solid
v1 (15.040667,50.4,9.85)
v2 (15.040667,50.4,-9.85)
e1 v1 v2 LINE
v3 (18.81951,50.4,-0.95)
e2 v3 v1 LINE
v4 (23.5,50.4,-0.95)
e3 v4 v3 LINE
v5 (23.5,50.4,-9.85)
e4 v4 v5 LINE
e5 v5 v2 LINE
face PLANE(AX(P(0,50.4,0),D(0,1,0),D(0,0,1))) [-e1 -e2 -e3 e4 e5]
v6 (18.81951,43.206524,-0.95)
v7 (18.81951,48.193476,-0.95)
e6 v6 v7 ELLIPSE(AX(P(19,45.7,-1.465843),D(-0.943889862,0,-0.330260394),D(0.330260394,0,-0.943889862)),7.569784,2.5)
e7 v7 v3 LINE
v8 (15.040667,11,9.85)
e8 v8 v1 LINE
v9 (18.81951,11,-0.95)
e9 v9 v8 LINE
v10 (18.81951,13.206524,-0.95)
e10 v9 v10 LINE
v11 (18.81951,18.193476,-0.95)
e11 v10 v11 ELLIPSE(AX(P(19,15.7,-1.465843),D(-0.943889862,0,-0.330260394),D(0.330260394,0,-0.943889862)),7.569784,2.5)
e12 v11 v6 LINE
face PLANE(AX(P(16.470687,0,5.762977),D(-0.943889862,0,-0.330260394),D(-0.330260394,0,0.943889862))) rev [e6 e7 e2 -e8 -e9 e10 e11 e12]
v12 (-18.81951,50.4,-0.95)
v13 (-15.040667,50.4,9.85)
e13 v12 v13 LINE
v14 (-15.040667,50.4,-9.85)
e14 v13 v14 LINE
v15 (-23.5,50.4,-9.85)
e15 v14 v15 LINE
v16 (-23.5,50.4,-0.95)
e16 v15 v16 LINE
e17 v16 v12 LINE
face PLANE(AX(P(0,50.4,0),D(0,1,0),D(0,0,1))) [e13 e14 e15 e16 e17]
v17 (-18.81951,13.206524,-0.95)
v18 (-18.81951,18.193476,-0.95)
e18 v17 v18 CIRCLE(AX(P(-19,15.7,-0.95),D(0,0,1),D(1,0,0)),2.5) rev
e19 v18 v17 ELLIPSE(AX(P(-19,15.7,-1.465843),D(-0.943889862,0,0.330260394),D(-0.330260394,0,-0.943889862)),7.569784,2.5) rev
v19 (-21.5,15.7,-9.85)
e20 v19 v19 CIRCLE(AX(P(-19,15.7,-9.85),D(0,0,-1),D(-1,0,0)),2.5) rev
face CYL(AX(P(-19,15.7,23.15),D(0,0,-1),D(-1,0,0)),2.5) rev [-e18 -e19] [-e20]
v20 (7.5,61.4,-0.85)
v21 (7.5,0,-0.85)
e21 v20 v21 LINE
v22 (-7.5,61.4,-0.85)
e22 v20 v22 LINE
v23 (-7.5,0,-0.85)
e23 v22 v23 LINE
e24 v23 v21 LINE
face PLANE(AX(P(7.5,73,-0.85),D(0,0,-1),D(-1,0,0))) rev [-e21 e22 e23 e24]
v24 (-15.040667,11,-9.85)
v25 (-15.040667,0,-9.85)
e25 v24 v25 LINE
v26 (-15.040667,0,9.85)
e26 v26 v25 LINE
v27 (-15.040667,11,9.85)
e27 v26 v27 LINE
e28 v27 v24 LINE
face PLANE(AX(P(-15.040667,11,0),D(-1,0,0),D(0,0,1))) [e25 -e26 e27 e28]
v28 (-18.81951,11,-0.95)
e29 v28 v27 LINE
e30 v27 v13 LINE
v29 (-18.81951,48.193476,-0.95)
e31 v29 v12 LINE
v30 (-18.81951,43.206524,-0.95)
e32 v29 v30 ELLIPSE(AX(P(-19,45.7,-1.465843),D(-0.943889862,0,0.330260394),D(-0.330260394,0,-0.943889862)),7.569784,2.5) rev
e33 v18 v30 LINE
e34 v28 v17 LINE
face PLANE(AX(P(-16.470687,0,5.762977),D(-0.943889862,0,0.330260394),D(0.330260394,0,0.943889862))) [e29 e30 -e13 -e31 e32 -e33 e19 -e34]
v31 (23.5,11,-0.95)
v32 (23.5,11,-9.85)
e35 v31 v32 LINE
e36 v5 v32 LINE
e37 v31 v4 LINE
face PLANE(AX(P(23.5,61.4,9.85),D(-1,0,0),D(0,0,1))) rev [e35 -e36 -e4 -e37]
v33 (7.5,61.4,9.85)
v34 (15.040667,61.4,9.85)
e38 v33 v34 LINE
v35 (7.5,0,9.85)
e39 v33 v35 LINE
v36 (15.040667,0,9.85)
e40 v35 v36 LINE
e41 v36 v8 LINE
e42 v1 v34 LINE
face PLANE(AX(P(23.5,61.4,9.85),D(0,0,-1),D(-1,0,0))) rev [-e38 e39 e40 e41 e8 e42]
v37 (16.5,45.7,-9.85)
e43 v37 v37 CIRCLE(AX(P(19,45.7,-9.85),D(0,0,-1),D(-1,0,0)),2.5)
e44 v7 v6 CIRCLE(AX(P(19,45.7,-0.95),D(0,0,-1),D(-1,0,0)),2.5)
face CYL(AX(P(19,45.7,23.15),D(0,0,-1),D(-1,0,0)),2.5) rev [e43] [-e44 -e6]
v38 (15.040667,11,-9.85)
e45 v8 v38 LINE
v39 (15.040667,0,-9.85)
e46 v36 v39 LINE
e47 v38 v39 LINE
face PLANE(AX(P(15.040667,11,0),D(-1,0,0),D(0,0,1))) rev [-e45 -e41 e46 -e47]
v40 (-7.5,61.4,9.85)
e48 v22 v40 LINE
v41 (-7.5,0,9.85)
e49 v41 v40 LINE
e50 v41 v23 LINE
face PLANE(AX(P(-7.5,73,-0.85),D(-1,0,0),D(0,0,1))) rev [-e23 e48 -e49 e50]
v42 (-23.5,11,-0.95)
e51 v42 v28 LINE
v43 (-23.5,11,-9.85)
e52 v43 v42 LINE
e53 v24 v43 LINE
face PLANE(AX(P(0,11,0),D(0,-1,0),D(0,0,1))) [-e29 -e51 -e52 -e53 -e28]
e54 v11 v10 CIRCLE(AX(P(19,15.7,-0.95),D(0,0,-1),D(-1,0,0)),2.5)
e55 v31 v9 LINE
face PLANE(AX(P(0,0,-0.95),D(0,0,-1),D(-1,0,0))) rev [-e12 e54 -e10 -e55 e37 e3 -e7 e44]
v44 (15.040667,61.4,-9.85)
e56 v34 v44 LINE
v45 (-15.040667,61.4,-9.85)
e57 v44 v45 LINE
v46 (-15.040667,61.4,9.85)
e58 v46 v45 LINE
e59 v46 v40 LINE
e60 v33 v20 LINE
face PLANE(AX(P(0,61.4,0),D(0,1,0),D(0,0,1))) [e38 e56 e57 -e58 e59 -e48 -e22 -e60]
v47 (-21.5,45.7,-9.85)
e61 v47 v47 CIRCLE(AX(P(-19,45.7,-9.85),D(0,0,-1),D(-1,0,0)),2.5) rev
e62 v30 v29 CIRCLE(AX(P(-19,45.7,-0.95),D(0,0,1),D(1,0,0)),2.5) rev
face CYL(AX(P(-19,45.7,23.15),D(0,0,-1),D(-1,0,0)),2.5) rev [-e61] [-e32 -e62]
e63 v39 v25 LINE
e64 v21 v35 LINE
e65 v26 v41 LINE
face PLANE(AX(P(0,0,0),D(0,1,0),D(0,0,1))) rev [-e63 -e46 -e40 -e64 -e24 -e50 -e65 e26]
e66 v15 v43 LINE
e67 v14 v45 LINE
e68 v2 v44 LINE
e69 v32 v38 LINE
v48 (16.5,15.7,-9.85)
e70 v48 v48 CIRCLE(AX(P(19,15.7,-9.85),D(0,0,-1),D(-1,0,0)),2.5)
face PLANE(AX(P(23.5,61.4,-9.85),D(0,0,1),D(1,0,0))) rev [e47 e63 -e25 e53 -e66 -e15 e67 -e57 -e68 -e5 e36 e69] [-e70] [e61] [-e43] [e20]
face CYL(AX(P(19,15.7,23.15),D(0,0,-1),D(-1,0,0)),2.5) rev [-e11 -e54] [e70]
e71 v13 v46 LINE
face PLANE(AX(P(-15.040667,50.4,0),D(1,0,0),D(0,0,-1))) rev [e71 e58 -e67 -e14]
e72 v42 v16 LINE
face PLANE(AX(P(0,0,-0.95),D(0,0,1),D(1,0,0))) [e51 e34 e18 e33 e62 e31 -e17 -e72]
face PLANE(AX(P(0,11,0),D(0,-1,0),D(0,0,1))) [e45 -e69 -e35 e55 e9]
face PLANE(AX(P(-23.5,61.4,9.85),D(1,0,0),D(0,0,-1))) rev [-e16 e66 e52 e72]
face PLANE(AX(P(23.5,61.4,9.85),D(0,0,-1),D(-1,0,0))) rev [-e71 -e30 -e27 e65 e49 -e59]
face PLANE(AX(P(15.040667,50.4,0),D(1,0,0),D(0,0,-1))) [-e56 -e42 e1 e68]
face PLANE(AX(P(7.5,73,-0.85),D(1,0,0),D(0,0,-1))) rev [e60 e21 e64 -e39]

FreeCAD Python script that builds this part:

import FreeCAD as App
import Part
import Sketcher
Q = App.Units.Quantity

doc = App.newDocument("Part")
body = doc.addObject("PartDesign::Body", "Body")

# Sketch on XZ plane
sketch1 = doc.addObject("Sketcher::SketchObject", "Sketch")
body.addObject(sketch1)
sketch1.AttachmentSupport = (doc.XZ_Plane, [""])
sketch1.MapMode = "FlatFace"
sketch1.addGeometry([
    Part.LineSegment(App.Vector(-24, -10, 0), App.Vector(-24, 10, 0)),
    Part.LineSegment(App.Vector(-24, 10, 0), App.Vector(24, 10, 0)),
    Part.LineSegment(App.Vector(24, 10, 0), App.Vector(24, -10, 0)),
    Part.LineSegment(App.Vector(24, -10, 0), App.Vector(-24, -10, 0)),
], False)
sketch1.addConstraint([
    Sketcher.Constraint("Coincident", 0, 2, 1, 1),
    Sketcher.Constraint("Coincident", 1, 2, 2, 1),
    Sketcher.Constraint("Coincident", 2, 2, 3, 1),
    Sketcher.Constraint("Coincident", 3, 2, 0, 1),
    Sketcher.Constraint("Vertical", 0),
    Sketcher.Constraint("Horizontal", 1),
    Sketcher.Constraint("Vertical", 2),
    Sketcher.Constraint("Horizontal", 3),
    Sketcher.Constraint("Symmetric", 0, 2, 2, 2, -1, 1),
    Sketcher.Constraint("DistanceX", 1, 1, 1, 2, Q("47 mm")),
    Sketcher.Constraint("DistanceY", 0, 1, 0, 2, Q("19.7 mm")),
])
pad1 = doc.addObject("PartDesign::Pad", "Pad")
body.addObject(pad1)
pad1.Profile = sketch1
pad1.Length = 61.4
pad1.Reversed = True

# Sketch on XZ plane
sketch2 = doc.addObject("Sketcher::SketchObject", "Sketch001")
body.addObject(sketch2)
sketch2.AttachmentSupport = (doc.XZ_Plane, [""])
sketch2.MapMode = "FlatFace"
sketch2.AttachmentOffset = App.Placement(App.Vector(0, 0, -61.4), App.Rotation())
sketch2.addGeometry([
    Part.LineSegment(App.Vector(-18.8, -0.9, 0), App.Vector(-23.5, -0.9, 0)),  # 0
    Part.LineSegment(App.Vector(-23.5, -0.9, 0), App.Vector(-23.5, 9.8, 0)),  # 1
    Part.LineSegment(App.Vector(-23.5, 9.8, 0), App.Vector(-15, 9.8, 0)),  # 2
    Part.LineSegment(App.Vector(-15, 9.8, 0), App.Vector(-18.8, -0.9, 0)),  # 3
    Part.LineSegment(App.Vector(18.8, -0.9, 0), App.Vector(15, 9.8, 0)),  # 4
    Part.LineSegment(App.Vector(15, 9.8, 0), App.Vector(23.5, 9.8, 0)),  # 5
    Part.LineSegment(App.Vector(23.5, 9.8, 0), App.Vector(23.5, -0.9, 0)),  # 6
    Part.LineSegment(App.Vector(23.5, -0.9, 0), App.Vector(18.8, -0.9, 0)),  # 7
], False)
sketch2.addConstraint([
    Sketcher.Constraint("Coincident", 0, 2, 1, 1),
    Sketcher.Constraint("Coincident", 1, 2, 2, 1),
    Sketcher.Constraint("Coincident", 2, 2, 3, 1),
    Sketcher.Constraint("Coincident", 3, 2, 0, 1),
    Sketcher.Constraint("Coincident", 4, 2, 5, 1),
    Sketcher.Constraint("Coincident", 5, 2, 6, 1),
    Sketcher.Constraint("Coincident", 6, 2, 7, 1),
    Sketcher.Constraint("Coincident", 7, 2, 4, 1),
    Sketcher.Constraint("Horizontal", 0),
    Sketcher.Constraint("Vertical", 1),
    Sketcher.Constraint("Horizontal", 2),
    Sketcher.Constraint("Horizontal", 5),
    Sketcher.Constraint("Vertical", 6),
    Sketcher.Constraint("Horizontal", 7),
    Sketcher.Constraint("Symmetric", 2, 2, 4, 2, -2),
    Sketcher.Constraint("Symmetric", 0, 2, 6, 2, -2),
    Sketcher.Constraint("Equal", 0, 7),
    Sketcher.Constraint("DistanceY", 1, 1, 1, 2, Q("10.8 mm")),
    Sketcher.Constraint("DistanceX", 1, 2, 5, 2, Q("47 mm")),
    Sketcher.Constraint("DistanceY", 0, 2, -1, 1, Q("0.95 mm")),
    Sketcher.Constraint("DistanceX", 0, 2, 0, 1, Q("4.68049 mm")),
    Sketcher.Constraint("DistanceX", 2, 1, 2, 2, Q("8.459333 mm")),
])
pocket1 = doc.addObject("PartDesign::Pocket", "Pocket")
body.addObject(pocket1)
pocket1.Profile = sketch2
pocket1.Type = "ThroughAll"
pocket1.Reversed = True

# Sketch on XZ plane
sketch3 = doc.addObject("Sketcher::SketchObject", "Sketch002")
body.addObject(sketch3)
sketch3.AttachmentSupport = (doc.XZ_Plane, [""])
sketch3.MapMode = "FlatFace"
sketch3.AttachmentOffset = App.Placement(App.Vector(0, 0, -61.4), App.Rotation())
sketch3.addGeometry([
    Part.LineSegment(App.Vector(-23.5, -9.8, 0), App.Vector(-23.5, -0.9, 0)),  # 0
    Part.LineSegment(App.Vector(-23.5, -0.9, 0), App.Vector(-18.8, -0.9, 0)),  # 1
    Part.LineSegment(App.Vector(-18.8, -0.9, 0), App.Vector(-15, 9.8, 0)),  # 2
    Part.LineSegment(App.Vector(-15, 9.8, 0), App.Vector(-15, -9.8, 0)),  # 3
    Part.LineSegment(App.Vector(-15, -9.8, 0), App.Vector(-23.5, -9.8, 0)),  # 4
    Part.LineSegment(App.Vector(15, -9.8, 0), App.Vector(15, 9.8, 0)),  # 5
    Part.LineSegment(App.Vector(15, 9.8, 0), App.Vector(18.8, -0.9, 0)),  # 6
    Part.LineSegment(App.Vector(18.8, -0.9, 0), App.Vector(23.5, -0.9, 0)),  # 7
    Part.LineSegment(App.Vector(23.5, -0.9, 0), App.Vector(23.5, -9.8, 0)),  # 8
    Part.LineSegment(App.Vector(23.5, -9.8, 0), App.Vector(15, -9.8, 0)),  # 9
], False)
sketch3.addConstraint([
    Sketcher.Constraint("Coincident", 0, 2, 1, 1),
    Sketcher.Constraint("Coincident", 1, 2, 2, 1),
    Sketcher.Constraint("Coincident", 2, 2, 3, 1),
    Sketcher.Constraint("Coincident", 3, 2, 4, 1),
    Sketcher.Constraint("Coincident", 4, 2, 0, 1),
    Sketcher.Constraint("Coincident", 5, 2, 6, 1),
    Sketcher.Constraint("Coincident", 6, 2, 7, 1),
    Sketcher.Constraint("Coincident", 7, 2, 8, 1),
    Sketcher.Constraint("Coincident", 8, 2, 9, 1),
    Sketcher.Constraint("Coincident", 9, 2, 5, 1),
    Sketcher.Constraint("Vertical", 0),
    Sketcher.Constraint("Horizontal", 1),
    Sketcher.Constraint("Vertical", 3),
    Sketcher.Constraint("Horizontal", 4),
    Sketcher.Constraint("Vertical", 5),
    Sketcher.Constraint("Horizontal", 7),
    Sketcher.Constraint("Vertical", 8),
    Sketcher.Constraint("Horizontal", 9),
    Sketcher.Constraint("Symmetric", 3, 2, 5, 2, -1, 1),
    Sketcher.Constraint("Symmetric", 1, 2, 6, 2, -2),
    Sketcher.Constraint("Symmetric", 4, 2, 8, 2, -2),
    Sketcher.Constraint("Horizontal", 2, 2, 5, 2),
    Sketcher.Constraint("DistanceY", 0, 1, 0, 2, Q("8.9 mm")),
    Sketcher.Constraint("DistanceY", 3, 2, 3, 1, Q("19.7 mm")),
    Sketcher.Constraint("DistanceX", 0, 2, -1, 1, Q("23.5 mm")),
    Sketcher.Constraint("DistanceX", 1, 1, 1, 2, Q("4.68049 mm")),
    Sketcher.Constraint("DistanceX", 4, 2, 4, 1, Q("8.459333 mm")),
])
pocket2 = doc.addObject("PartDesign::Pocket", "Pocket001")
body.addObject(pocket2)
pocket2.Profile = sketch3
pocket2.Length = 11
pocket2.Reversed = True
doc.recompute()

datumplane = doc.addObject("PartDesign::Plane", "DatumPlane")
body.addObject(datumplane)
datumplane.AttachmentSupport = (doc.XZ_Plane, [""])
datumplane.MapMode = "FlatFace"
datumplane.AttachmentOffset = App.Placement(App.Vector(0, 0, -30.7), App.Rotation())
mirrored = doc.addObject("PartDesign::Mirrored", "Mirrored")
body.addObject(mirrored)
mirrored.Originals = [pocket2]
mirrored.MirrorPlane = (datumplane, [""])
body.Tip = mirrored

# Sketch on XY plane
sketch4 = doc.addObject("Sketcher::SketchObject", "Sketch003")
body.addObject(sketch4)
sketch4.AttachmentSupport = (doc.XY_Plane, [""])
sketch4.MapMode = "FlatFace"
sketch4.AttachmentOffset = App.Placement(App.Vector(0, 0, -9.85), App.Rotation())
sketch4.addGeometry([
    Part.Circle(App.Vector(19, 15.7, 0), App.Vector(0, 0, 1), 2.5),
    Part.Circle(App.Vector(-19, 15.7, 0), App.Vector(0, 0, 1), 2.5),
    Part.Circle(App.Vector(-19, 45.7, 0), App.Vector(0, 0, 1), 2.5),
    Part.Circle(App.Vector(19, 45.7, 0), App.Vector(0, 0, 1), 2.5),
], False)
sketch4.addConstraint([
    Sketcher.Constraint("Equal", 0, 1),
    Sketcher.Constraint("Equal", 1, 2),
    Sketcher.Constraint("Equal", 2, 3),
    Sketcher.Constraint("Symmetric", 0, 3, 1, 3, -2),
    Sketcher.Constraint("Symmetric", 2, 3, 3, 3, -2),
    Sketcher.Constraint("Vertical", 1, 3, 2, 3),
    Sketcher.Constraint("Diameter", 0, Q("5 mm")),
    Sketcher.Constraint("DistanceX", -1, 1, 0, 3, Q("19 mm")),
    Sketcher.Constraint("DistanceY", 1, 3, 2, 3, Q("30 mm")),
    Sketcher.Constraint("DistanceY", -1, 1, 0, 3, Q("15.7 mm")),
])
pocket3 = doc.addObject("PartDesign::Pocket", "Pocket002")
body.addObject(pocket3)
pocket3.Profile = sketch4
pocket3.Length = 33
pocket3.Reversed = True

# Sketch on XZ plane
sketch5 = doc.addObject("Sketcher::SketchObject", "Sketch004")
body.addObject(sketch5)
sketch5.AttachmentSupport = (doc.XZ_Plane, [""])
sketch5.MapMode = "FlatFace"
sketch5.addGeometry([
    Part.LineSegment(App.Vector(-8, 21, 0), App.Vector(-8, -1, 0)),
    Part.LineSegment(App.Vector(-8, -1, 0), App.Vector(8, -1, 0)),
    Part.LineSegment(App.Vector(8, -1, 0), App.Vector(8, 21, 0)),
    Part.LineSegment(App.Vector(8, 21, 0), App.Vector(-8, 21, 0)),
], False)
sketch5.addConstraint([
    Sketcher.Constraint("Coincident", 0, 2, 1, 1),
    Sketcher.Constraint("Coincident", 1, 2, 2, 1),
    Sketcher.Constraint("Coincident", 2, 2, 3, 1),
    Sketcher.Constraint("Coincident", 3, 2, 0, 1),
    Sketcher.Constraint("Vertical", 0),
    Sketcher.Constraint("Horizontal", 1),
    Sketcher.Constraint("Vertical", 2),
    Sketcher.Constraint("Horizontal", 3),
    Sketcher.Constraint("DistanceX", 1, 1, 1, 2, Q("15 mm")),
    Sketcher.Constraint("DistanceX", 0, 2, -1, 1, Q("7.5 mm")),
    Sketcher.Constraint("DistanceY", 0, 2, -1, 1, Q("0.85 mm")),
    Sketcher.Constraint("DistanceY", 0, 2, 0, 1, Q("21.981641 mm")),
])
pocket4 = doc.addObject("PartDesign::Pocket", "Pocket003")
body.addObject(pocket4)
pocket4.Profile = sketch5
pocket4.Length = 73

doc.recompute()
